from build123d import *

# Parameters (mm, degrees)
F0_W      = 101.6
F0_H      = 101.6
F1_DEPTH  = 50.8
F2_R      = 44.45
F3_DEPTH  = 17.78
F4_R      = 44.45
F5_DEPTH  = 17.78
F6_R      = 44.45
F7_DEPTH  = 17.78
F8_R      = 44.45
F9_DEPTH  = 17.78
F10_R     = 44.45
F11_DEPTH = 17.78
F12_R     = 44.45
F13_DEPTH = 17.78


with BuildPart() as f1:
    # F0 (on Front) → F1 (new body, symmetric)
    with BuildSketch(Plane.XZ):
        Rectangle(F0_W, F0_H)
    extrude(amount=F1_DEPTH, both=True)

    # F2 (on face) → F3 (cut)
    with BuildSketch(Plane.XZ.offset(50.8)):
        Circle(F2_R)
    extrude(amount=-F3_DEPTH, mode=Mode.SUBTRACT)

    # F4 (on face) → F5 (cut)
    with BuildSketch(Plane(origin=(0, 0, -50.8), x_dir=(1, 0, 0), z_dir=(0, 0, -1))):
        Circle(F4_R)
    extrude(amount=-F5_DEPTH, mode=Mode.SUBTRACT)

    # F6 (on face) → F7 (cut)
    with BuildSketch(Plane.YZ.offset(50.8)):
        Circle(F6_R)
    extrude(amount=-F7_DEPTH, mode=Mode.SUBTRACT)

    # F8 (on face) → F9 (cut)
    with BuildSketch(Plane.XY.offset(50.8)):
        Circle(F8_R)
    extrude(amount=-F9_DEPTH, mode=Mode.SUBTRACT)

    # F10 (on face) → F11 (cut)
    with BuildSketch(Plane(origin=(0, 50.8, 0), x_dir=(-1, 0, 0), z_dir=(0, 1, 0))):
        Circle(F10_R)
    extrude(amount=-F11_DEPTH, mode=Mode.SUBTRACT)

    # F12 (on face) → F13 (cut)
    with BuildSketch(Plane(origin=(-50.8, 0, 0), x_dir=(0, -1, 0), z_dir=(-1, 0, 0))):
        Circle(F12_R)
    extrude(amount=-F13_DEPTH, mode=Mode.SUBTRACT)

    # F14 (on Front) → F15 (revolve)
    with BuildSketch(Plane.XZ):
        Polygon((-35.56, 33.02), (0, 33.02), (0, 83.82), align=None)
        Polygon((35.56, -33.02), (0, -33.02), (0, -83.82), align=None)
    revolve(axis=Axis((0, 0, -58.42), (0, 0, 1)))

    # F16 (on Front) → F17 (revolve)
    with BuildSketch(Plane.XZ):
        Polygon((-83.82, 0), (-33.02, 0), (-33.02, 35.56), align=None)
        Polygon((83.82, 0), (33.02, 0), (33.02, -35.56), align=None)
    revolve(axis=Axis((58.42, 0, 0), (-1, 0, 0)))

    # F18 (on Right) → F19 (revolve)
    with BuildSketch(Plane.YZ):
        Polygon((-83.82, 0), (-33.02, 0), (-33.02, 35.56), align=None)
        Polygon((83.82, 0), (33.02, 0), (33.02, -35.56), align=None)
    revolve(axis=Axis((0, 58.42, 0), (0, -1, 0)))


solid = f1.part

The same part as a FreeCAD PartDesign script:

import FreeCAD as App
import Part
import Sketcher
from FreeCAD import Vector
Q = App.Units.Quantity


def add_polygon(sketch, points):
    """Adds a closed chain of lines whose ends are joined by coincident constraints."""
    first, n = sketch.GeometryCount, len(points)
    for a, b in zip(points, points[1:] + points[:1]):
        sketch.addGeometry(Part.LineSegment(App.Vector(*a, 0), App.Vector(*b, 0)), False)
    for i in range(n):
        sketch.addConstraint(Sketcher.Constraint("Coincident", first + i, 2, first + (i + 1) % n, 1))

doc = App.newDocument("Part")
body = doc.addObject("PartDesign::Body", "Body")

# Sketch on XZ plane
sketch1 = body.newObject("Sketcher::SketchObject", "Sketch")
sketch1.AttachmentSupport = (doc.getObject("XZ_Plane"), [""])
sketch1.MapMode = "FlatFace"
add_polygon(sketch1, [(-51, 51), (-51, -51), (51, -51), (51, 51)])  # lines 0-3
sketch1.addConstraint(Sketcher.Constraint("Vertical", 0))
sketch1.addConstraint(Sketcher.Constraint("Horizontal", 1))
sketch1.addConstraint(Sketcher.Constraint("Vertical", 2))
sketch1.addConstraint(Sketcher.Constraint("Horizontal", 3))
sketch1.addConstraint(Sketcher.Constraint("Symmetric", 0, 2, 2, 2, -1, 1))
sketch1.addConstraint(Sketcher.Constraint("Equal", 3, 0))
sketch1.addConstraint(Sketcher.Constraint("DistanceX", 1, 1, 1, 2, Q("4 in")))
pad1 = body.newObject("PartDesign::Pad", "Pad")
pad1.Profile = sketch1
pad1.Length = Q("4 in")
pad1.Midplane = True

# Sketch on XZ plane
sketch2 = body.newObject("Sketcher::SketchObject", "Sketch001")
sketch2.AttachmentSupport = (doc.getObject("XZ_Plane"), [""])
sketch2.MapMode = "FlatFace"
sketch2.AttachmentOffset = App.Placement(Vector(0, 0, 2 * 25.4), App.Rotation())
sketch2.addGeometry(Part.Circle(Vector(0, 0, 0), Vector(0, 0, 1), 44), False)
sketch2.addConstraint(Sketcher.Constraint("Coincident", 0, 3, -1, 1))
sketch2.addConstraint(Sketcher.Constraint("Diameter", 0, Q("3.5 in")))
pocket1 = body.newObject("PartDesign::Pocket", "Pocket")
pocket1.Profile = sketch2
pocket1.Length = Q("0.7 in")

# Sketch on XY plane
sketch3 = body.newObject("Sketcher::SketchObject", "Sketch002")
sketch3.AttachmentSupport = (doc.getObject("XY_Plane"), [""])
sketch3.MapMode = "FlatFace"
sketch3.AttachmentOffset = App.Placement(Vector(0, 0, -2 * 25.4), App.Rotation())
sketch3.addGeometry(Part.Circle(Vector(0, 0, 0), Vector(0, 0, 1), 44), False)
sketch3.addConstraint(Sketcher.Constraint("Coincident", 0, 3, -1, 1))
sketch3.addConstraint(Sketcher.Constraint("Diameter", 0, Q("3.5 in")))
pocket2 = body.newObject("PartDesign::Pocket", "Pocket001")
pocket2.Profile = sketch3
pocket2.Length = Q("0.7 in")
pocket2.Reversed = True

# Sketch on YZ plane
sketch4 = body.newObject("Sketcher::SketchObject", "Sketch003")
sketch4.AttachmentSupport = (doc.getObject("YZ_Plane"), [""])
sketch4.MapMode = "FlatFace"
sketch4.AttachmentOffset = App.Placement(Vector(0, 0, 2 * 25.4), App.Rotation())
sketch4.addGeometry(Part.Circle(Vector(0, 0, 0), Vector(0, 0, 1), 44), False)
sketch4.addConstraint(Sketcher.Constraint("Coincident", 0, 3, -1, 1))
sketch4.addConstraint(Sketcher.Constraint("Diameter", 0, Q("3.5 in")))
pocket3 = body.newObject("PartDesign::Pocket", "Pocket002")
pocket3.Profile = sketch4
pocket3.Length = Q("0.7 in")

# Sketch on XY plane
sketch5 = body.newObject("Sketcher::SketchObject", "Sketch004")
sketch5.AttachmentSupport = (doc.getObject("XY_Plane"), [""])
sketch5.MapMode = "FlatFace"
sketch5.AttachmentOffset = App.Placement(Vector(0, 0, 2 * 25.4), App.Rotation())
sketch5.addGeometry(Part.Circle(Vector(0, 0, 0), Vector(0, 0, 1), 44), False)
sketch5.addConstraint(Sketcher.Constraint("Coincident", 0, 3, -1, 1))
sketch5.addConstraint(Sketcher.Constraint("Diameter", 0, Q("3.5 in")))
pocket4 = body.newObject("PartDesign::Pocket", "Pocket003")
pocket4.Profile = sketch5
pocket4.Length = Q("0.7 in")

# Sketch on XZ plane
sketch6 = body.newObject("Sketcher::SketchObject", "Sketch005")
sketch6.AttachmentSupport = (doc.getObject("XZ_Plane"), [""])
sketch6.MapMode = "FlatFace"
sketch6.AttachmentOffset = App.Placement(Vector(0, 0, -2 * 25.4), App.Rotation())
sketch6.addGeometry(Part.Circle(Vector(0, 0, 0), Vector(0, 0, 1), 44), False)
sketch6.addConstraint(Sketcher.Constraint("Coincident", 0, 3, -1, 1))
sketch6.addConstraint(Sketcher.Constraint("Diameter", 0, Q("3.5 in")))
pocket5 = body.newObject("PartDesign::Pocket", "Pocket004")
pocket5.Profile = sketch6
pocket5.Length = Q("0.7 in")
pocket5.Reversed = True

# Sketch on YZ plane
sketch7 = body.newObject("Sketcher::SketchObject", "Sketch006")
sketch7.AttachmentSupport = (doc.getObject("YZ_Plane"), [""])
sketch7.MapMode = "FlatFace"
sketch7.AttachmentOffset = App.Placement(Vector(0, 0, -2 * 25.4), App.Rotation())
sketch7.addGeometry(Part.Circle(Vector(0, 0, 0), Vector(0, 0, 1), 44), False)
sketch7.addConstraint(Sketcher.Constraint("Coincident", 0, 3, -1, 1))
sketch7.addConstraint(Sketcher.Constraint("Diameter", 0, Q("3.5 in")))
pocket6 = body.newObject("PartDesign::Pocket", "Pocket005")
pocket6.Profile = sketch7
pocket6.Length = Q("0.7 in")
pocket6.Reversed = True

# Sketch on XZ plane
sketch8 = body.newObject("Sketcher::SketchObject", "Sketch007")
sketch8.AttachmentSupport = (doc.getObject("XZ_Plane"), [""])
sketch8.MapMode = "FlatFace"
add_polygon(sketch8, [(-36, 33), (0, 33), (0, 84)])  # lines 0-2
add_polygon(sketch8, [(36, -33), (0, -33), (0, -84)])  # lines 3-5
sketch8.addConstraint(Sketcher.Constraint("Horizontal", 0))
sketch8.addConstraint(Sketcher.Constraint("Vertical", 1))
sketch8.addConstraint(Sketcher.Constraint("Horizontal", 3))
sketch8.addConstraint(Sketcher.Constraint("Vertical", 4))
sketch8.addConstraint(Sketcher.Constraint("Symmetric", 0, 2, 3, 2, -1, 1))
sketch8.addConstraint(Sketcher.Constraint("Symmetric", 1, 2, 4, 2, -1))
sketch8.addConstraint(Sketcher.Constraint("Parallel", 2, 5))
sketch8.addConstraint(Sketcher.Constraint("DistanceY", 1, 1, 1, 2, Q("2 in")))
sketch8.addConstraint(Sketcher.Constraint("DistanceX", 0, 1, 0, 2, Q("1.4 in")))
sketch8.addConstraint(Sketcher.Constraint("DistanceY", -1, 1, 0, 2, Q("1.3 in")))
revolution = body.newObject("PartDesign::Revolution", "Revolution")
revolution.Profile = sketch8
revolution.ReferenceAxis = (sketch8, ["V_Axis"])
revolution.Angle = 360

# Sketch on XZ plane
sketch9 = body.newObject("Sketcher::SketchObject", "Sketch008")
sketch9.AttachmentSupport = (doc.getObject("XZ_Plane"), [""])
sketch9.MapMode = "FlatFace"
add_polygon(sketch9, [(-84, 0), (-33, 0), (-33, 36)])  # lines 0-2
add_polygon(sketch9, [(84, 0), (33, 0), (33, -36)])  # lines 3-5
sketch9.addConstraint(Sketcher.Constraint("Horizontal", 0))
sketch9.addConstraint(Sketcher.Constraint("Vertical", 1))
sketch9.addConstraint(Sketcher.Constraint("Horizontal", 3))
sketch9.addConstraint(Sketcher.Constraint("Vertical", 4))
sketch9.addConstraint(Sketcher.Constraint("Symmetric", 0, 2, 3, 2, -1, 1))
sketch9.addConstraint(Sketcher.Constraint("Symmetric", 2, 2, 5, 2, -2))
sketch9.addConstraint(Sketcher.Constraint("Parallel", 2, 5))
sketch9.addConstraint(Sketcher.Constraint("DistanceX", 0, 1, 0, 2, Q("2 in")))
sketch9.addConstraint(Sketcher.Constraint("DistanceY", 1, 1, 1, 2, Q("1.4 in")))
sketch9.addConstraint(Sketcher.Constraint("DistanceX", 0, 2, -1, 1, Q("1.3 in")))
revolution2 = body.newObject("PartDesign::Revolution", "Revolution001")
revolution2.Profile = sketch9
revolution2.ReferenceAxis = (sketch9, ["H_Axis"])
revolution2.Angle = 360

# Sketch on YZ plane
sketch10 = body.newObject("Sketcher::SketchObject", "Sketch009")
sketch10.AttachmentSupport = (doc.getObject("YZ_Plane"), [""])
sketch10.MapMode = "FlatFace"
add_polygon(sketch10, [(-84, 0), (-33, 0), (-33, 36)])  # lines 0-2
add_polygon(sketch10, [(84, 0), (33, 0), (33, -36)])  # lines 3-5
sketch10.addConstraint(Sketcher.Constraint("Horizontal", 0))
sketch10.addConstraint(Sketcher.Constraint("Vertical", 1))
sketch10.addConstraint(Sketcher.Constraint("Horizontal", 3))
sketch10.addConstraint(Sketcher.Constraint("Vertical", 4))
sketch10.addConstraint(Sketcher.Constraint("Symmetric", 0, 2, 3, 2, -1, 1))
sketch10.addConstraint(Sketcher.Constraint("Symmetric", 2, 2, 5, 2, -2))
sketch10.addConstraint(Sketcher.Constraint("Parallel", 2, 5))
sketch10.addConstraint(Sketcher.Constraint("DistanceX", 0, 1, 0, 2, Q("2 in")))
sketch10.addConstraint(Sketcher.Constraint("DistanceY", 1, 1, 1, 2, Q("1.4 in")))
sketch10.addConstraint(Sketcher.Constraint("DistanceX", 0, 2, -1, 1, Q("1.3 in")))
revolution3 = body.newObject("PartDesign::Revolution", "Revolution002")
revolution3.Profile = sketch10
revolution3.ReferenceAxis = (sketch10, ["H_Axis"])
revolution3.Angle = 360

doc.recompute()
